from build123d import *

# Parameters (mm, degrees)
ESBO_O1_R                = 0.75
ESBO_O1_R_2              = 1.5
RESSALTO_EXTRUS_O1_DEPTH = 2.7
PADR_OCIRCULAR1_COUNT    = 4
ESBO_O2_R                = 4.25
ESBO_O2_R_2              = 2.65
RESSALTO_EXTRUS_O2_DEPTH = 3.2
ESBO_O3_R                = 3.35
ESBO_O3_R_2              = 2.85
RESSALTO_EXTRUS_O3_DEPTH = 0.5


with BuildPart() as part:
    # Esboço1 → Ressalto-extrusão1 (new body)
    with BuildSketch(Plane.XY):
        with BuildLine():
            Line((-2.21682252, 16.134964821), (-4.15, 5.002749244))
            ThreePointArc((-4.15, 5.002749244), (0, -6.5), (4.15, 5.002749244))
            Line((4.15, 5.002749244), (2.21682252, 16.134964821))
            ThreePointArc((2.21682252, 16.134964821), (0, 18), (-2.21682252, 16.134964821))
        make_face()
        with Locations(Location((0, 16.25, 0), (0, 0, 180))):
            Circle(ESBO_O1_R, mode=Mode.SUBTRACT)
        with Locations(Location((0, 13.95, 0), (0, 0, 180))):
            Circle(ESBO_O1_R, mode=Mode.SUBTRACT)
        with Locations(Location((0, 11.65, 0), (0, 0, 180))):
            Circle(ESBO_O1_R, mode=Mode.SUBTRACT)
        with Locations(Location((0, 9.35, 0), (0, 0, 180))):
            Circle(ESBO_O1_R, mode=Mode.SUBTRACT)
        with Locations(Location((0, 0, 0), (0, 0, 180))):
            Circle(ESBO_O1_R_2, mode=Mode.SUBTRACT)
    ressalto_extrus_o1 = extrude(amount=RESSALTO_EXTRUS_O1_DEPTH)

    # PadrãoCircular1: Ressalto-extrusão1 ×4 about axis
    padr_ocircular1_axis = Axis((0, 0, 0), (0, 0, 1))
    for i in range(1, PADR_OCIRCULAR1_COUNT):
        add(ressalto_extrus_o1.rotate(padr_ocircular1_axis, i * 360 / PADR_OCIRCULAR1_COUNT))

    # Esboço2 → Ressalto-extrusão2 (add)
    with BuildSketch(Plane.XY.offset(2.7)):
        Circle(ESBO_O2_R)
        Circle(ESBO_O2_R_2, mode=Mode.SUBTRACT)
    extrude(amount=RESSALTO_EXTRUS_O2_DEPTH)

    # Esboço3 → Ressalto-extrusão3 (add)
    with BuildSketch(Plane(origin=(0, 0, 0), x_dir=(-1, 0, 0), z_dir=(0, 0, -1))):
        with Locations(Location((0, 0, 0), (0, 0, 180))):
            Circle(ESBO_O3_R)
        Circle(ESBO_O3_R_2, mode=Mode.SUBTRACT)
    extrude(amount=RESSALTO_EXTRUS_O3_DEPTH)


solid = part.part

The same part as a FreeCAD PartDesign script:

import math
import FreeCAD as App
import Part
import Sketcher

V = App.Vector

doc = App.newDocument("Part")
body = doc.addObject("PartDesign::Body", "Body")

# Sketch on XY plane
sketch1 = doc.addObject("Sketcher::SketchObject", "Sketch")
body.addObject(sketch1)
sketch1.AttachmentSupport = (doc.XY_Plane, [""])
sketch1.MapMode = "FlatFace"
sketch1.addGeometry([
    Part.LineSegment(V(-2.2, 16.1, 0), V(-4.2, 5, 0)),  # 0
    Part.ArcOfCircle(Part.Circle(V(0, 0, 0), V(0, 0, 1), 6.5), math.radians(130), math.radians(410)),  # 1
    Part.LineSegment(V(4.2, 5, 0), V(2.2, 16.1, 0)),  # 2
    Part.ArcOfCircle(Part.Circle(V(0, 15.8, 0), V(0, 0, 1), 2.2), math.radians(10), math.radians(170)),  # 3
    Part.Circle(V(0, 0, 0), V(0, 0, 1), 1.5),  # 4
    Part.Circle(V(0, 9.3, 0), V(0, 0, 1), 0.8),  # 5
    Part.Circle(V(0, 11.7, 0), V(0, 0, 1), 0.8),  # 6
    Part.Circle(V(0, 13.9, 0), V(0, 0, 1), 0.8),  # 7
    Part.Circle(V(0, 16.2, 0), V(0, 0, 1), 0.8),  # 8
], False)
sketch1.addConstraint([
    Sketcher.Constraint("Coincident", 0, 2, 1, 1),
    Sketcher.Constraint("Coincident", 1, 2, 2, 1),
    Sketcher.Constraint("Tangent", 2, 2, 3, 1),
    Sketcher.Constraint("Tangent", 3, 2, 0, 1),
    Sketcher.Constraint("Coincident", 1, 3, -1, 1),
    Sketcher.Constraint("Coincident", 4, 3, -1, 1),
    Sketcher.Constraint("Equal", 5, 6),
    Sketcher.Constraint("Equal", 6, 7),
    Sketcher.Constraint("Equal", 7, 8),
    Sketcher.Constraint("Symmetric", 2, 2, 3, 2, -2),
    Sketcher.Constraint("PointOnObject", 5, 3, -2),
    Sketcher.Constraint("PointOnObject", 6, 3, -2),
    Sketcher.Constraint("PointOnObject", 7, 3, -2),
    Sketcher.Constraint("PointOnObject", 8, 3, -2),
    Sketcher.Constraint("Diameter", 4, 3.0),
    Sketcher.Constraint("Diameter", 5, 1.5),
    Sketcher.Constraint("Radius", 1, 6.5),
    Sketcher.Constraint("Radius", 3, 2.25),
    Sketcher.Constraint("DistanceY", 5, 3, 3, 3, 6.4),
    Sketcher.Constraint("DistanceY", 5, 3, 6, 3, 2.3),
    Sketcher.Constraint("DistanceY", 7, 3, 3, 3, 1.8),
    Sketcher.Constraint("DistanceY", 3, 3, 8, 3, 0.5),
    Sketcher.Constraint("DistanceX", 0, 2, 1, 2, 8.3),
    Sketcher.Constraint("DistanceY", -1, 1, 3, 3, 15.75),
])
pad1 = doc.addObject("PartDesign::Pad", "Pad")
body.addObject(pad1)
pad1.Profile = sketch1
pad1.Length = 2.7
doc.recompute()

polarpattern = doc.addObject("PartDesign::PolarPattern", "PolarPattern")
body.addObject(polarpattern)
polarpattern.Originals = [pad1]
polarpattern.Axis = (doc.Z_Axis, [""])
polarpattern.Angle = 360
polarpattern.Occurrences = 4
body.Tip = polarpattern

# Sketch on XY plane
sketch2 = doc.addObject("Sketcher::SketchObject", "Sketch001")
body.addObject(sketch2)
sketch2.AttachmentSupport = (doc.XY_Plane, [""])
sketch2.MapMode = "FlatFace"
sketch2.AttachmentOffset = App.Placement(V(0, 0, 2.7), App.Rotation())
sketch2.addGeometry([
    Part.Circle(V(0, 0, 0), V(0, 0, 1), 4.2),
    Part.Circle(V(0, 0, 0), V(0, 0, 1), 2.6),
], False)
sketch2.addConstraint([
    Sketcher.Constraint("Coincident", 0, 3, -1, 1),
    Sketcher.Constraint("Coincident", 1, 3, -1, 1),
    Sketcher.Constraint("Diameter", 0, 8.5),
    Sketcher.Constraint("Diameter", 1, 5.3),
])
pad2 = doc.addObject("PartDesign::Pad", "Pad001")
body.addObject(pad2)
pad2.Profile = sketch2
pad2.Length = 3.2

# Sketch on XY plane
sketch3 = doc.addObject("Sketcher::SketchObject", "Sketch002")
body.addObject(sketch3)
sketch3.AttachmentSupport = (doc.XY_Plane, [""])
sketch3.MapMode = "FlatFace"
sketch3.addGeometry([
    Part.Circle(V(0, 0, 0), V(0, 0, 1), 3.4),
    Part.Circle(V(0, 0, 0), V(0, 0, 1), 2.9),
], False)
sketch3.addConstraint([
    Sketcher.Constraint("Coincident", 0, 3, -1, 1),
    Sketcher.Constraint("Coincident", 1, 3, -1, 1),
    Sketcher.Constraint("Diameter", 0, 6.7),
    Sketcher.Constraint("Diameter", 1, 5.7),
])
pad3 = doc.addObject("PartDesign::Pad", "Pad002")
body.addObject(pad3)
pad3.Profile = sketch3
pad3.Length = 0.5
pad3.Reversed = True

doc.recompute()
